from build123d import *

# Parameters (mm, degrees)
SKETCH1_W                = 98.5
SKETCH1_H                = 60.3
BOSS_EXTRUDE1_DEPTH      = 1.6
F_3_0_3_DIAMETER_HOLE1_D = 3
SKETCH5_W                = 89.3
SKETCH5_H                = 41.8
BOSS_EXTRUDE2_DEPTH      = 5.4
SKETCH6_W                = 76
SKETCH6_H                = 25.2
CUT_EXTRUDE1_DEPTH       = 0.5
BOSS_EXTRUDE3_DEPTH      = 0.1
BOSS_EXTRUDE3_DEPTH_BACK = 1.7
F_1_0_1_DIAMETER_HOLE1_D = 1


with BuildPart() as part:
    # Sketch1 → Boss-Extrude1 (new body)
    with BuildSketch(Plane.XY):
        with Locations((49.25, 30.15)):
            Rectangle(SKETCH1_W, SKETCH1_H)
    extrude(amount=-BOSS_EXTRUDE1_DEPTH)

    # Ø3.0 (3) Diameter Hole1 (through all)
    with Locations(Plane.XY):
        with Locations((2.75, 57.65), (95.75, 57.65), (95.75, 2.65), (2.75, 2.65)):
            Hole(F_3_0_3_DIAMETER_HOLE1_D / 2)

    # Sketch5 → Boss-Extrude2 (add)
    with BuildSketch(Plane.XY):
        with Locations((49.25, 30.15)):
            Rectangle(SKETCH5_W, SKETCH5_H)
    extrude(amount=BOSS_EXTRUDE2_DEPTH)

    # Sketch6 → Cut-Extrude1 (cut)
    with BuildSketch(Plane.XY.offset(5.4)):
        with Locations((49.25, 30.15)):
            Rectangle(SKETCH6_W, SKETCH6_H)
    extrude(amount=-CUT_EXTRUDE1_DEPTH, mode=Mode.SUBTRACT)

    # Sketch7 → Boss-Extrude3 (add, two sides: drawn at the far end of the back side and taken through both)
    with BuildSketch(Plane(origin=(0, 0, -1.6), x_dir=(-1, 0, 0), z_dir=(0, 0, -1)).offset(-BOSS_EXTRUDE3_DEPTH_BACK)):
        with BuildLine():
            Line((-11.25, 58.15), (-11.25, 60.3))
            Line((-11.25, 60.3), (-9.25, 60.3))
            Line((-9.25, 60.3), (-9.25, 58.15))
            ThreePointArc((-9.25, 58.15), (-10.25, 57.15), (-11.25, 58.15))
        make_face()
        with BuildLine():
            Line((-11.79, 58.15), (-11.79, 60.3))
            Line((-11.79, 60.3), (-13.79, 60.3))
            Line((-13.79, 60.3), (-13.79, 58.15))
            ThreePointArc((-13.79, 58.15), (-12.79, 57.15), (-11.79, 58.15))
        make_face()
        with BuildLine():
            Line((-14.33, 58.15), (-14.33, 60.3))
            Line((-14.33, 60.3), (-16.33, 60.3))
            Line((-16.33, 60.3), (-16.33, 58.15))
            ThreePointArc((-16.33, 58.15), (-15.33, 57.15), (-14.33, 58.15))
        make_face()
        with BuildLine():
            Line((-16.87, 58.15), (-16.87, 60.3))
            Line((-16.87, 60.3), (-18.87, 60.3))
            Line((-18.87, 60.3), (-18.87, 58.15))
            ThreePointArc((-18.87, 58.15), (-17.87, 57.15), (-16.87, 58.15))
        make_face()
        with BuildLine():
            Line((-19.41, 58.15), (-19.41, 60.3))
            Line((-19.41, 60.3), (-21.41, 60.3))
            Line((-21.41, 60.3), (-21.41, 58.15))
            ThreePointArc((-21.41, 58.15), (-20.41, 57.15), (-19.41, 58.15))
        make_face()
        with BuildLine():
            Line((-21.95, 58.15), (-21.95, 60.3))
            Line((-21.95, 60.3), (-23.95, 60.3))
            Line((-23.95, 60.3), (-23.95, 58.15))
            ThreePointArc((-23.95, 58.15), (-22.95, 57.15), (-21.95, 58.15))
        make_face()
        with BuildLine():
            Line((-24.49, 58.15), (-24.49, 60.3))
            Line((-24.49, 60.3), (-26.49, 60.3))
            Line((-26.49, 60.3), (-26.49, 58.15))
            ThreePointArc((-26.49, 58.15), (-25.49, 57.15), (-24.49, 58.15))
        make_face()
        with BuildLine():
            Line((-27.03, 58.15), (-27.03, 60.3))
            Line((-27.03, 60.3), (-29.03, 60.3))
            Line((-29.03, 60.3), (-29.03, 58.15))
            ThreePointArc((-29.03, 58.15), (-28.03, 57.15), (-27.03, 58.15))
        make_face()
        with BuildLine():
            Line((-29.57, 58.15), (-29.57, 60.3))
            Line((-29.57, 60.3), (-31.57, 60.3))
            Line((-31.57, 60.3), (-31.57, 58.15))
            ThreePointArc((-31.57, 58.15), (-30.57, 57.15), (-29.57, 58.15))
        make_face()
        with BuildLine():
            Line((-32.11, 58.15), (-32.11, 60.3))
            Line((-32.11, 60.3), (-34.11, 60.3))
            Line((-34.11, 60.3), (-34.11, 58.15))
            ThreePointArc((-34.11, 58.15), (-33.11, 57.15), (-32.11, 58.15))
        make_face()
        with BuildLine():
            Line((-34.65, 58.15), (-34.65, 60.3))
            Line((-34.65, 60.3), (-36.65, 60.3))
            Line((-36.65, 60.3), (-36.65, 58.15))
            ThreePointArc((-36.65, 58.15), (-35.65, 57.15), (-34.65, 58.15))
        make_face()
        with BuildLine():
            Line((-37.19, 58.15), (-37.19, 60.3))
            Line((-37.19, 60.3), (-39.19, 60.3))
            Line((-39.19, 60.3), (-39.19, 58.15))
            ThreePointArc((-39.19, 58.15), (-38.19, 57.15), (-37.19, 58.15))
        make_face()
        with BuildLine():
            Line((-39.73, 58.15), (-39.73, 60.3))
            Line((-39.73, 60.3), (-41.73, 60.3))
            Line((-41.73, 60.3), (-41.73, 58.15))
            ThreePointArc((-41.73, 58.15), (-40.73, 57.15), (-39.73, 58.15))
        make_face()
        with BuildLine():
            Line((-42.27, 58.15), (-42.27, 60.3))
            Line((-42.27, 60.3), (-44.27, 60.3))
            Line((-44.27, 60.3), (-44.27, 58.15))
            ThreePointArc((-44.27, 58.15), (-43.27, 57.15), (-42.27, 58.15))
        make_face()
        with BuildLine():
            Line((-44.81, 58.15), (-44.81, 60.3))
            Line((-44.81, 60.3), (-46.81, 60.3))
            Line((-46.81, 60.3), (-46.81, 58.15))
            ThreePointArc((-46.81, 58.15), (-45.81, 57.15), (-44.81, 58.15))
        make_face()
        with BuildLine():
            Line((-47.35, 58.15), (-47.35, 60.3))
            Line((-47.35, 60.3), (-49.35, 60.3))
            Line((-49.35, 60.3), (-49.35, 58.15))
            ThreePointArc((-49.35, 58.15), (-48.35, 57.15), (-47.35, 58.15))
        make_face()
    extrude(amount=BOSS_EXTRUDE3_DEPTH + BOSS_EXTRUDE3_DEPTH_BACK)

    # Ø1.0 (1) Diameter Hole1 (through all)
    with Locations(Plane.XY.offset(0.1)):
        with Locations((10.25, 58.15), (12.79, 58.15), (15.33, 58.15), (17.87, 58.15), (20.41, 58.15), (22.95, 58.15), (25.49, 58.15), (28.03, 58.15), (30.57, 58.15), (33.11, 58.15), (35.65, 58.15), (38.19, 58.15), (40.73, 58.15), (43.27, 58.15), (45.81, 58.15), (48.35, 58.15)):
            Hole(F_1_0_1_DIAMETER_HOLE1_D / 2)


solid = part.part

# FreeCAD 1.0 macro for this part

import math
import FreeCAD as App
import Part
import Sketcher

V = App.Vector
Q = App.Units.Quantity


def add_polygon(sketch, points):
    """Adds a closed chain of lines whose ends are joined by coincident constraints."""
    first, n = sketch.GeometryCount, len(points)
    for a, b in zip(points, points[1:] + points[:1]):
        sketch.addGeometry(Part.LineSegment(App.Vector(*a, 0), App.Vector(*b, 0)), False)
    for i in range(n):
        sketch.addConstraint(Sketcher.Constraint("Coincident", first + i, 2, first + (i + 1) % n, 1))

doc = App.newDocument("Part")
body = doc.addObject("PartDesign::Body", "Body")

# Sketch on XY plane
sketch1 = body.newObject("Sketcher::SketchObject", "Sketch")
sketch1.AttachmentSupport = (doc.getObject("XY_Plane"), [""])
sketch1.MapMode = "FlatFace"
add_polygon(sketch1, [(0, 60.3), (0, 0), (98.5, 0), (98.5, 60.3)])  # lines 0-3
sketch1.addConstraint([
    Sketcher.Constraint("Vertical", 0),
    Sketcher.Constraint("Horizontal", 1),
    Sketcher.Constraint("Vertical", 2),
    Sketcher.Constraint("Horizontal", 3),
    Sketcher.Constraint("Coincident", 0, 2, -1, 1),
    Sketcher.Constraint("DistanceX", 1, 1, 1, 2, Q("98.5 mm")),
    Sketcher.Constraint("DistanceY", 0, 2, 0, 1, Q("60.3 mm")),
])
pad1 = body.newObject("PartDesign::Pad", "Pad")
pad1.Profile = sketch1
pad1.Length = 1.6
pad1.Reversed = True

# Sketch on XY plane
sketch2 = body.newObject("Sketcher::SketchObject", "Sketch001")
sketch2.AttachmentSupport = (doc.getObject("XY_Plane"), [""])
sketch2.MapMode = "FlatFace"
sketch2.addGeometry([
    Part.Circle(V(2.75, 57.65, 0), V(0, 0, 1), 1.5),
    Part.Circle(V(95.75, 57.65, 0), V(0, 0, 1), 1.5),
    Part.Circle(V(95.75, 2.65, 0), V(0, 0, 1), 1.5),
    Part.Circle(V(2.75, 2.65, 0), V(0, 0, 1), 1.5),
], False)
sketch2.addConstraint([
    Sketcher.Constraint("Equal", 0, 1),
    Sketcher.Constraint("Equal", 1, 2),
    Sketcher.Constraint("Equal", 2, 3),
    Sketcher.Constraint("Horizontal", 0, 3, 1, 3),
    Sketcher.Constraint("Horizontal", 2, 3, 3, 3),
    Sketcher.Constraint("Vertical", 1, 3, 2, 3),
    Sketcher.Constraint("Vertical", 0, 3, 3, 3),
    Sketcher.Constraint("Diameter", 0, Q("3 mm")),
    Sketcher.Constraint("DistanceX", 0, 3, 1, 3, Q("93 mm")),
    Sketcher.Constraint("DistanceY", 2, 3, 1, 3, Q("55 mm")),
    Sketcher.Constraint("DistanceX", -1, 1, 0, 3, Q("2.75 mm")),
    Sketcher.Constraint("DistanceY", -1, 1, 0, 3, Q("57.65 mm")),
])
doc.recompute()
hole = body.newObject("PartDesign::Hole", "Hole")
hole.Profile = sketch2
hole.ThreadType = "None"
hole.Diameter = 3
hole.DepthType = "ThroughAll"

# Sketch on XY plane
sketch3 = body.newObject("Sketcher::SketchObject", "Sketch002")
sketch3.AttachmentSupport = (doc.getObject("XY_Plane"), [""])
sketch3.MapMode = "FlatFace"
add_polygon(sketch3, [(4.6, 51.05), (4.6, 9.25), (93.9, 9.25), (93.9, 51.05)])  # lines 0-3
sketch3.addConstraint([
    Sketcher.Constraint("Vertical", 0),
    Sketcher.Constraint("Horizontal", 1),
    Sketcher.Constraint("Vertical", 2),
    Sketcher.Constraint("Horizontal", 3),
    Sketcher.Constraint("DistanceX", 1, 1, 1, 2, Q("89.3 mm")),
    Sketcher.Constraint("DistanceY", 0, 2, 0, 1, Q("41.8 mm")),
    Sketcher.Constraint("DistanceX", -1, 1, 0, 2, Q("4.6 mm")),
    Sketcher.Constraint("DistanceY", -1, 1, 0, 2, Q("9.25 mm")),
])
pad2 = body.newObject("PartDesign::Pad", "Pad001")
pad2.Profile = sketch3
pad2.Length = 5.4

# Sketch on XY plane
sketch4 = body.newObject("Sketcher::SketchObject", "Sketch003")
sketch4.AttachmentSupport = (doc.getObject("XY_Plane"), [""])
sketch4.MapMode = "FlatFace"
sketch4.AttachmentOffset = App.Placement(V(0, 0, 5.4), App.Rotation())
add_polygon(sketch4, [(11.25, 42.75), (11.25, 17.55), (87.25, 17.55), (87.25, 42.75)])  # lines 0-3
sketch4.addConstraint([
    Sketcher.Constraint("Vertical", 0),
    Sketcher.Constraint("Horizontal", 1),
    Sketcher.Constraint("Vertical", 2),
    Sketcher.Constraint("Horizontal", 3),
    Sketcher.Constraint("DistanceX", 1, 1, 1, 2, Q("76 mm")),
    Sketcher.Constraint("DistanceY", 0, 2, 0, 1, Q("25.2 mm")),
    Sketcher.Constraint("DistanceX", -1, 1, 0, 2, Q("11.25 mm")),
    Sketcher.Constraint("DistanceY", -1, 1, 0, 2, Q("17.55 mm")),
])
pocket1 = body.newObject("PartDesign::Pocket", "Pocket")
pocket1.Profile = sketch4
pocket1.Length = 0.5

# Sketch on XY plane
sketch5 = body.newObject("Sketcher::SketchObject", "Sketch004")
sketch5.AttachmentSupport = (doc.getObject("XY_Plane"), [""])
sketch5.MapMode = "FlatFace"
sketch5.AttachmentOffset = App.Placement(V(0, 0, -1.6), App.Rotation())
sketch5.addGeometry([
    Part.LineSegment(V(11.25, 60.3, 0), V(11.25, 58.15, 0)),  # 0
    Part.ArcOfCircle(Part.Circle(V(10.25, 58.15, 0), V(0, 0, 1), 1), math.radians(180), math.radians(360)),  # 1
    Part.LineSegment(V(9.25, 58.15, 0), V(9.25, 60.3, 0)),  # 2
    Part.LineSegment(V(9.25, 60.3, 0), V(11.25, 60.3, 0)),  # 3
    Part.LineSegment(V(11.79, 58.15, 0), V(11.79, 60.3, 0)),  # 4
    Part.LineSegment(V(11.79, 60.3, 0), V(13.79, 60.3, 0)),  # 5
    Part.LineSegment(V(13.79, 60.3, 0), V(13.79, 58.15, 0)),  # 6
    Part.ArcOfCircle(Part.Circle(V(12.79, 58.15, 0), V(0, 0, 1), 1), math.radians(180), math.radians(360)),  # 7
    Part.LineSegment(V(14.33, 58.15, 0), V(14.33, 60.3, 0)),  # 8
    Part.LineSegment(V(14.33, 60.3, 0), V(16.33, 60.3, 0)),  # 9
    Part.LineSegment(V(16.33, 60.3, 0), V(16.33, 58.15, 0)),  # 10
    Part.ArcOfCircle(Part.Circle(V(15.33, 58.15, 0), V(0, 0, 1), 1), math.radians(180), math.radians(360)),  # 11
    Part.LineSegment(V(16.87, 58.15, 0), V(16.87, 60.3, 0)),  # 12
    Part.LineSegment(V(16.87, 60.3, 0), V(18.87, 60.3, 0)),  # 13
    Part.LineSegment(V(18.87, 60.3, 0), V(18.87, 58.15, 0)),  # 14
    Part.ArcOfCircle(Part.Circle(V(17.87, 58.15, 0), V(0, 0, 1), 1), math.radians(180), math.radians(360)),  # 15
    Part.LineSegment(V(19.41, 58.15, 0), V(19.41, 60.3, 0)),  # 16
    Part.LineSegment(V(19.41, 60.3, 0), V(21.41, 60.3, 0)),  # 17
    Part.LineSegment(V(21.41, 60.3, 0), V(21.41, 58.15, 0)),  # 18
    Part.ArcOfCircle(Part.Circle(V(20.41, 58.15, 0), V(0, 0, 1), 1), math.radians(180), math.radians(360)),  # 19
    Part.LineSegment(V(21.95, 58.15, 0), V(21.95, 60.3, 0)),  # 20
    Part.LineSegment(V(21.95, 60.3, 0), V(23.95, 60.3, 0)),  # 21
    Part.LineSegment(V(23.95, 60.3, 0), V(23.95, 58.15, 0)),  # 22
    Part.ArcOfCircle(Part.Circle(V(22.95, 58.15, 0), V(0, 0, 1), 1), math.radians(180), math.radians(360)),  # 23
    Part.LineSegment(V(24.49, 58.15, 0), V(24.49, 60.3, 0)),  # 24
    Part.LineSegment(V(24.49, 60.3, 0), V(26.49, 60.3, 0)),  # 25
    Part.LineSegment(V(26.49, 60.3, 0), V(26.49, 58.15, 0)),  # 26
    Part.ArcOfCircle(Part.Circle(V(25.49, 58.15, 0), V(0, 0, 1), 1), math.radians(180), math.radians(360)),  # 27
    Part.LineSegment(V(27.03, 58.15, 0), V(27.03, 60.3, 0)),  # 28
    Part.LineSegment(V(27.03, 60.3, 0), V(29.03, 60.3, 0)),  # 29
    Part.LineSegment(V(29.03, 60.3, 0), V(29.03, 58.15, 0)),  # 30
    Part.ArcOfCircle(Part.Circle(V(28.03, 58.15, 0), V(0, 0, 1), 1), math.radians(180), math.radians(360)),  # 31
    Part.LineSegment(V(29.57, 58.15, 0), V(29.57, 60.3, 0)),  # 32
    Part.LineSegment(V(29.57, 60.3, 0), V(31.57, 60.3, 0)),  # 33
    Part.LineSegment(V(31.57, 60.3, 0), V(31.57, 58.15, 0)),  # 34
    Part.ArcOfCircle(Part.Circle(V(30.57, 58.15, 0), V(0, 0, 1), 1), math.radians(180), math.radians(360)),  # 35
    Part.LineSegment(V(32.11, 58.15, 0), V(32.11, 60.3, 0)),  # 36
    Part.LineSegment(V(32.11, 60.3, 0), V(34.11, 60.3, 0)),  # 37
    Part.LineSegment(V(34.11, 60.3, 0), V(34.11, 58.15, 0)),  # 38
    Part.ArcOfCircle(Part.Circle(V(33.11, 58.15, 0), V(0, 0, 1), 1), math.radians(180), math.radians(360)),  # 39
    Part.LineSegment(V(34.65, 58.15, 0), V(34.65, 60.3, 0)),  # 40
    Part.LineSegment(V(34.65, 60.3, 0), V(36.65, 60.3, 0)),  # 41
    Part.LineSegment(V(36.65, 60.3, 0), V(36.65, 58.15, 0)),  # 42
    Part.ArcOfCircle(Part.Circle(V(35.65, 58.15, 0), V(0, 0, 1), 1), math.radians(180), math.radians(360)),  # 43
    Part.LineSegment(V(37.19, 58.15, 0), V(37.19, 60.3, 0)),  # 44
    Part.LineSegment(V(37.19, 60.3, 0), V(39.19, 60.3, 0)),  # 45
    Part.LineSegment(V(39.19, 60.3, 0), V(39.19, 58.15, 0)),  # 46
    Part.ArcOfCircle(Part.Circle(V(38.19, 58.15, 0), V(0, 0, 1), 1), math.radians(180), math.radians(360)),  # 47
    Part.LineSegment(V(39.73, 58.15, 0), V(39.73, 60.3, 0)),  # 48
    Part.LineSegment(V(39.73, 60.3, 0), V(41.73, 60.3, 0)),  # 49
    Part.LineSegment(V(41.73, 60.3, 0), V(41.73, 58.15, 0)),  # 50
    Part.ArcOfCircle(Part.Circle(V(40.73, 58.15, 0), V(0, 0, 1), 1), math.radians(180), math.radians(360)),  # 51
    Part.LineSegment(V(42.27, 58.15, 0), V(42.27, 60.3, 0)),  # 52
    Part.LineSegment(V(42.27, 60.3, 0), V(44.27, 60.3, 0)),  # 53
    Part.LineSegment(V(44.27, 60.3, 0), V(44.27, 58.15, 0)),  # 54
    Part.ArcOfCircle(Part.Circle(V(43.27, 58.15, 0), V(0, 0, 1), 1), math.radians(180), math.radians(360)),  # 55
    Part.LineSegment(V(44.81, 58.15, 0), V(44.81, 60.3, 0)),  # 56
    Part.LineSegment(V(44.81, 60.3, 0), V(46.81, 60.3, 0)),  # 57
    Part.LineSegment(V(46.81, 60.3, 0), V(46.81, 58.15, 0)),  # 58
    Part.ArcOfCircle(Part.Circle(V(45.81, 58.15, 0), V(0, 0, 1), 1), math.radians(180), math.radians(360)),  # 59
    Part.LineSegment(V(47.35, 58.15, 0), V(47.35, 60.3, 0)),  # 60
    Part.LineSegment(V(47.35, 60.3, 0), V(49.35, 60.3, 0)),  # 61
    Part.LineSegment(V(49.35, 60.3, 0), V(49.35, 58.15, 0)),  # 62
    Part.ArcOfCircle(Part.Circle(V(48.35, 58.15, 0), V(0, 0, 1), 1), math.radians(180), math.radians(360)),  # 63
], False)
sketch5.addConstraint([
    Sketcher.Constraint("Tangent", 0, 2, 1, 2),
    Sketcher.Constraint("Tangent", 1, 1, 2, 1),
    Sketcher.Constraint("Coincident", 2, 2, 3, 1),
    Sketcher.Constraint("Coincident", 3, 2, 0, 1),
    Sketcher.Constraint("Coincident", 4, 2, 5, 1),
    Sketcher.Constraint("Coincident", 5, 2, 6, 1),
    Sketcher.Constraint("Tangent", 6, 2, 7, 2),
    Sketcher.Constraint("Tangent", 7, 1, 4, 1),
    Sketcher.Constraint("Coincident", 8, 2, 9, 1),
    Sketcher.Constraint("Coincident", 9, 2, 10, 1),
    Sketcher.Constraint("Tangent", 10, 2, 11, 2),
    Sketcher.Constraint("Tangent", 11, 1, 8, 1),
    Sketcher.Constraint("Coincident", 12, 2, 13, 1),
    Sketcher.Constraint("Coincident", 13, 2, 14, 1),
    Sketcher.Constraint("Tangent", 14, 2, 15, 2),
    Sketcher.Constraint("Tangent", 15, 1, 12, 1),
    Sketcher.Constraint("Coincident", 16, 2, 17, 1),
    Sketcher.Constraint("Coincident", 17, 2, 18, 1),
    Sketcher.Constraint("Tangent", 18, 2, 19, 2),
    Sketcher.Constraint("Tangent", 19, 1, 16, 1),
    Sketcher.Constraint("Coincident", 20, 2, 21, 1),
    Sketcher.Constraint("Coincident", 21, 2, 22, 1),
    Sketcher.Constraint("Tangent", 22, 2, 23, 2),
    Sketcher.Constraint("Tangent", 23, 1, 20, 1),
    Sketcher.Constraint("Coincident", 24, 2, 25, 1),
    Sketcher.Constraint("Coincident", 25, 2, 26, 1),
    Sketcher.Constraint("Tangent", 26, 2, 27, 2),
    Sketcher.Constraint("Tangent", 27, 1, 24, 1),
    Sketcher.Constraint("Coincident", 28, 2, 29, 1),
    Sketcher.Constraint("Coincident", 29, 2, 30, 1),
    Sketcher.Constraint("Tangent", 30, 2, 31, 2),
    Sketcher.Constraint("Tangent", 31, 1, 28, 1),
    Sketcher.Constraint("Coincident", 32, 2, 33, 1),
    Sketcher.Constraint("Coincident", 33, 2, 34, 1),
    Sketcher.Constraint("Tangent", 34, 2, 35, 2),
    Sketcher.Constraint("Tangent", 35, 1, 32, 1),
    Sketcher.Constraint("Coincident", 36, 2, 37, 1),
    Sketcher.Constraint("Coincident", 37, 2, 38, 1),
    Sketcher.Constraint("Tangent", 38, 2, 39, 2),
    Sketcher.Constraint("Tangent", 39, 1, 36, 1),
    Sketcher.Constraint("Coincident", 40, 2, 41, 1),
    Sketcher.Constraint("Coincident", 41, 2, 42, 1),
    Sketcher.Constraint("Tangent", 42, 2, 43, 2),
    Sketcher.Constraint("Tangent", 43, 1, 40, 1),
    Sketcher.Constraint("Coincident", 44, 2, 45, 1),
    Sketcher.Constraint("Coincident", 45, 2, 46, 1),
    Sketcher.Constraint("Tangent", 46, 2, 47, 2),
    Sketcher.Constraint("Tangent", 47, 1, 44, 1),
    Sketcher.Constraint("Coincident", 48, 2, 49, 1),
    Sketcher.Constraint("Coincident", 49, 2, 50, 1),
    Sketcher.Constraint("Tangent", 50, 2, 51, 2),
    Sketcher.Constraint("Tangent", 51, 1, 48, 1),
    Sketcher.Constraint("Coincident", 52, 2, 53, 1),
    Sketcher.Constraint("Coincident", 53, 2, 54, 1),
    Sketcher.Constraint("Tangent", 54, 2, 55, 2),
    Sketcher.Constraint("Tangent", 55, 1, 52, 1),
    Sketcher.Constraint("Coincident", 56, 2, 57, 1),
    Sketcher.Constraint("Coincident", 57, 2, 58, 1),
    Sketcher.Constraint("Tangent", 58, 2, 59, 2),
    Sketcher.Constraint("Tangent", 59, 1, 56, 1),
    Sketcher.Constraint("Coincident", 60, 2, 61, 1),
    Sketcher.Constraint("Coincident", 61, 2, 62, 1),
    Sketcher.Constraint("Tangent", 62, 2, 63, 2),
    Sketcher.Constraint("Tangent", 63, 1, 60, 1),
    Sketcher.Constraint("Vertical", 0),
    Sketcher.Constraint("Vertical", 2),
    Sketcher.Constraint("Horizontal", 3),
    Sketcher.Constraint("Vertical", 4),
    Sketcher.Constraint("Horizontal", 5),
    Sketcher.Constraint("Vertical", 6),
    Sketcher.Constraint("Vertical", 8),
    Sketcher.Constraint("Horizontal", 9),
    Sketcher.Constraint("Vertical", 10),
    Sketcher.Constraint("Vertical", 12),
    Sketcher.Constraint("Horizontal", 13),
    Sketcher.Constraint("Vertical", 14),
    Sketcher.Constraint("Vertical", 16),
    Sketcher.Constraint("Horizontal", 17),
    Sketcher.Constraint("Vertical", 18),
    Sketcher.Constraint("Vertical", 20),
    Sketcher.Constraint("Horizontal", 21),
    Sketcher.Constraint("Vertical", 22),
    Sketcher.Constraint("Vertical", 24),
    Sketcher.Constraint("Horizontal", 25),
    Sketcher.Constraint("Vertical", 26),
    Sketcher.Constraint("Vertical", 28),
    Sketcher.Constraint("Horizontal", 29),
    Sketcher.Constraint("Vertical", 30),
    Sketcher.Constraint("Vertical", 32),
    Sketcher.Constraint("Horizontal", 33),
    Sketcher.Constraint("Vertical", 34),
    Sketcher.Constraint("Vertical", 36),
    Sketcher.Constraint("Horizontal", 37),
    Sketcher.Constraint("Vertical", 38),
    Sketcher.Constraint("Vertical", 40),
    Sketcher.Constraint("Horizontal", 41),
    Sketcher.Constraint("Vertical", 42),
    Sketcher.Constraint("Vertical", 44),
    Sketcher.Constraint("Horizontal", 45),
    Sketcher.Constraint("Vertical", 46),
    Sketcher.Constraint("Vertical", 48),
    Sketcher.Constraint("Horizontal", 49),
    Sketcher.Constraint("Vertical", 50),
    Sketcher.Constraint("Vertical", 52),
    Sketcher.Constraint("Horizontal", 53),
    Sketcher.Constraint("Vertical", 54),
    Sketcher.Constraint("Vertical", 56),
    Sketcher.Constraint("Horizontal", 57),
    Sketcher.Constraint("Vertical", 58),
    Sketcher.Constraint("Vertical", 60),
    Sketcher.Constraint("Horizontal", 61),
    Sketcher.Constraint("Vertical", 62),
    Sketcher.Constraint("Equal", 1, 7),
    Sketcher.Constraint("Equal", 7, 11),
    Sketcher.Constraint("Equal", 11, 15),
    Sketcher.Constraint("Equal", 15, 19),
    Sketcher.Constraint("Equal", 19, 23),
    Sketcher.Constraint("Equal", 23, 27),
    Sketcher.Constraint("Equal", 27, 31),
    Sketcher.Constraint("Equal", 31, 35),
    Sketcher.Constraint("Equal", 35, 39),
    Sketcher.Constraint("Equal", 39, 43),
    Sketcher.Constraint("Equal", 43, 47),
    Sketcher.Constraint("Equal", 47, 51),
    Sketcher.Constraint("Equal", 51, 55),
    Sketcher.Constraint("Equal", 55, 59),
    Sketcher.Constraint("Equal", 59, 63),
    Sketcher.Constraint("Horizontal", 1, 3, 7, 3),
    Sketcher.Constraint("Horizontal", 7, 3, 11, 3),
    Sketcher.Constraint("Horizontal", 11, 3, 15, 3),
    Sketcher.Constraint("Horizontal", 15, 3, 19, 3),
    Sketcher.Constraint("Horizontal", 19, 3, 23, 3),
    Sketcher.Constraint("Horizontal", 23, 3, 27, 3),
    Sketcher.Constraint("Horizontal", 27, 3, 31, 3),
    Sketcher.Constraint("Horizontal", 31, 3, 35, 3),
    Sketcher.Constraint("Horizontal", 35, 3, 39, 3),
    Sketcher.Constraint("Horizontal", 39, 3, 43, 3),
    Sketcher.Constraint("Horizontal", 43, 3, 47, 3),
    Sketcher.Constraint("Horizontal", 47, 3, 51, 3),
    Sketcher.Constraint("Horizontal", 51, 3, 55, 3),
    Sketcher.Constraint("Horizontal", 55, 3, 59, 3),
    Sketcher.Constraint("Horizontal", 59, 3, 63, 3),
    Sketcher.Constraint("Horizontal", 3, 2, 4, 2),
    Sketcher.Constraint("Horizontal", 5, 2, 8, 2),
    Sketcher.Constraint("Horizontal", 9, 2, 12, 2),
    Sketcher.Constraint("Horizontal", 13, 2, 16, 2),
    Sketcher.Constraint("Horizontal", 17, 2, 20, 2),
    Sketcher.Constraint("Horizontal", 21, 2, 24, 2),
    Sketcher.Constraint("Horizontal", 25, 2, 28, 2),
    Sketcher.Constraint("Horizontal", 29, 2, 32, 2),
    Sketcher.Constraint("Horizontal", 33, 2, 36, 2),
    Sketcher.Constraint("Horizontal", 37, 2, 40, 2),
    Sketcher.Constraint("Horizontal", 41, 2, 44, 2),
    Sketcher.Constraint("Horizontal", 45, 2, 48, 2),
    Sketcher.Constraint("Horizontal", 49, 2, 52, 2),
    Sketcher.Constraint("Horizontal", 53, 2, 56, 2),
    Sketcher.Constraint("Horizontal", 57, 2, 60, 2),
    Sketcher.Constraint("Radius", 1, Q("1 mm")),
    Sketcher.Constraint("DistanceY", 0, 2, 0, 1, Q("2.15 mm")),
    Sketcher.Constraint("DistanceY", -1, 1, 2, 2, Q("60.3 mm")),
    Sketcher.Constraint("DistanceX", -1, 1, 1, 3, Q("10.25 mm")),
    Sketcher.Constraint("DistanceX", -1, 1, 7, 3, Q("12.79 mm")),
    Sketcher.Constraint("DistanceX", -1, 1, 11, 3, Q("15.33 mm")),
    Sketcher.Constraint("DistanceX", -1, 1, 15, 3, Q("17.87 mm")),
    Sketcher.Constraint("DistanceX", -1, 1, 19, 3, Q("20.41 mm")),
    Sketcher.Constraint("DistanceX", -1, 1, 23, 3, Q("22.95 mm")),
    Sketcher.Constraint("DistanceX", -1, 1, 27, 3, Q("25.49 mm")),
    Sketcher.Constraint("DistanceX", -1, 1, 31, 3, Q("28.03 mm")),
    Sketcher.Constraint("DistanceX", -1, 1, 35, 3, Q("30.57 mm")),
    Sketcher.Constraint("DistanceX", -1, 1, 39, 3, Q("33.11 mm")),
    Sketcher.Constraint("DistanceX", -1, 1, 43, 3, Q("35.65 mm")),
    Sketcher.Constraint("DistanceX", -1, 1, 47, 3, Q("38.19 mm")),
    Sketcher.Constraint("DistanceX", -1, 1, 51, 3, Q("40.73 mm")),
    Sketcher.Constraint("DistanceX", -1, 1, 55, 3, Q("43.27 mm")),
    Sketcher.Constraint("DistanceX", -1, 1, 59, 3, Q("45.81 mm")),
    Sketcher.Constraint("DistanceX", -1, 1, 63, 3, Q("48.35 mm")),
])
pad3 = body.newObject("PartDesign::Pad", "Pad002")
pad3.Profile = sketch5
pad3.Type = "TwoLengths"
pad3.Length = 0.1
pad3.Length2 = 1.7
pad3.Reversed = True

# Sketch on XY plane
sketch6 = body.newObject("Sketcher::SketchObject", "Sketch005")
sketch6.AttachmentSupport = (doc.getObject("XY_Plane"), [""])
sketch6.MapMode = "FlatFace"
sketch6.AttachmentOffset = App.Placement(V(0, 0, 0.1), App.Rotation())
sketch6.addGeometry([
    Part.Circle(V(10.25, 58.15, 0), V(0, 0, 1), 0.5),  # 0
    Part.Circle(V(12.79, 58.15, 0), V(0, 0, 1), 0.5),  # 1
    Part.Circle(V(15.33, 58.15, 0), V(0, 0, 1), 0.5),  # 2
    Part.Circle(V(17.87, 58.15, 0), V(0, 0, 1), 0.5),  # 3
    Part.Circle(V(20.41, 58.15, 0), V(0, 0, 1), 0.5),  # 4
    Part.Circle(V(22.95, 58.15, 0), V(0, 0, 1), 0.5),  # 5
    Part.Circle(V(25.49, 58.15, 0), V(0, 0, 1), 0.5),  # 6
    Part.Circle(V(28.03, 58.15, 0), V(0, 0, 1), 0.5),  # 7
    Part.Circle(V(30.57, 58.15, 0), V(0, 0, 1), 0.5),  # 8
    Part.Circle(V(33.11, 58.15, 0), V(0, 0, 1), 0.5),  # 9
    Part.Circle(V(35.65, 58.15, 0), V(0, 0, 1), 0.5),  # 10
    Part.Circle(V(38.19, 58.15, 0), V(0, 0, 1), 0.5),  # 11
    Part.Circle(V(40.73, 58.15, 0), V(0, 0, 1), 0.5),  # 12
    Part.Circle(V(43.27, 58.15, 0), V(0, 0, 1), 0.5),  # 13
    Part.Circle(V(45.81, 58.15, 0), V(0, 0, 1), 0.5),  # 14
    Part.Circle(V(48.35, 58.15, 0), V(0, 0, 1), 0.5),  # 15
], False)
sketch6.addConstraint([
    Sketcher.Constraint("Equal", 0, 1),
    Sketcher.Constraint("Equal", 1, 2),
    Sketcher.Constraint("Equal", 2, 3),
    Sketcher.Constraint("Equal", 3, 4),
    Sketcher.Constraint("Equal", 4, 5),
    Sketcher.Constraint("Equal", 5, 6),
    Sketcher.Constraint("Equal", 6, 7),
    Sketcher.Constraint("Equal", 7, 8),
    Sketcher.Constraint("Equal", 8, 9),
    Sketcher.Constraint("Equal", 9, 10),
    Sketcher.Constraint("Equal", 10, 11),
    Sketcher.Constraint("Equal", 11, 12),
    Sketcher.Constraint("Equal", 12, 13),
    Sketcher.Constraint("Equal", 13, 14),
    Sketcher.Constraint("Equal", 14, 15),
    Sketcher.Constraint("Horizontal", 0, 3, 1, 3),
    Sketcher.Constraint("Horizontal", 1, 3, 2, 3),
    Sketcher.Constraint("Horizontal", 2, 3, 3, 3),
    Sketcher.Constraint("Horizontal", 3, 3, 4, 3),
    Sketcher.Constraint("Horizontal", 4, 3, 5, 3),
    Sketcher.Constraint("Horizontal", 5, 3, 6, 3),
    Sketcher.Constraint("Horizontal", 6, 3, 7, 3),
    Sketcher.Constraint("Horizontal", 7, 3, 8, 3),
    Sketcher.Constraint("Horizontal", 8, 3, 9, 3),
    Sketcher.Constraint("Horizontal", 9, 3, 10, 3),
    Sketcher.Constraint("Horizontal", 10, 3, 11, 3),
    Sketcher.Constraint("Horizontal", 11, 3, 12, 3),
    Sketcher.Constraint("Horizontal", 12, 3, 13, 3),
    Sketcher.Constraint("Horizontal", 13, 3, 14, 3),
    Sketcher.Constraint("Horizontal", 14, 3, 15, 3),
    Sketcher.Constraint("Diameter", 0, Q("1 mm")),
    Sketcher.Constraint("DistanceX", 0, 3, 5, 3, Q("12.7 mm")),
    Sketcher.Constraint("DistanceX", 1, 3, 6, 3, Q("12.7 mm")),
    Sketcher.Constraint("DistanceX", 2, 3, 7, 3, Q("12.7 mm")),
    Sketcher.Constraint("DistanceX", 3, 3, 8, 3, Q("12.7 mm")),
    Sketcher.Constraint("DistanceX", 4, 3, 9, 3, Q("12.7 mm")),
    Sketcher.Constraint("DistanceX", 5, 3, 10, 3, Q("12.7 mm")),
    Sketcher.Constraint("DistanceX", 6, 3, 11, 3, Q("12.7 mm")),
    Sketcher.Constraint("DistanceX", 7, 3, 12, 3, Q("12.7 mm")),
    Sketcher.Constraint("DistanceX", 8, 3, 13, 3, Q("12.7 mm")),
    Sketcher.Constraint("DistanceX", 9, 3, 14, 3, Q("12.7 mm")),
    Sketcher.Constraint("DistanceX", 10, 3, 15, 3, Q("12.7 mm")),
    Sketcher.Constraint("DistanceX", -1, 1, 0, 3, Q("10.25 mm")),
    Sketcher.Constraint("DistanceY", -1, 1, 0, 3, Q("58.15 mm")),
    Sketcher.Constraint("DistanceX", -1, 1, 1, 3, Q("12.79 mm")),
    Sketcher.Constraint("DistanceX", -1, 1, 2, 3, Q("15.33 mm")),
    Sketcher.Constraint("DistanceX", -1, 1, 3, 3, Q("17.87 mm")),
    Sketcher.Constraint("DistanceX", -1, 1, 4, 3, Q("20.41 mm")),
])
doc.recompute()
hole2 = body.newObject("PartDesign::Hole", "Hole001")
hole2.Profile = sketch6
hole2.ThreadType = "None"
hole2.Diameter = 1
hole2.DepthType = "ThroughAll"

doc.recompute()
